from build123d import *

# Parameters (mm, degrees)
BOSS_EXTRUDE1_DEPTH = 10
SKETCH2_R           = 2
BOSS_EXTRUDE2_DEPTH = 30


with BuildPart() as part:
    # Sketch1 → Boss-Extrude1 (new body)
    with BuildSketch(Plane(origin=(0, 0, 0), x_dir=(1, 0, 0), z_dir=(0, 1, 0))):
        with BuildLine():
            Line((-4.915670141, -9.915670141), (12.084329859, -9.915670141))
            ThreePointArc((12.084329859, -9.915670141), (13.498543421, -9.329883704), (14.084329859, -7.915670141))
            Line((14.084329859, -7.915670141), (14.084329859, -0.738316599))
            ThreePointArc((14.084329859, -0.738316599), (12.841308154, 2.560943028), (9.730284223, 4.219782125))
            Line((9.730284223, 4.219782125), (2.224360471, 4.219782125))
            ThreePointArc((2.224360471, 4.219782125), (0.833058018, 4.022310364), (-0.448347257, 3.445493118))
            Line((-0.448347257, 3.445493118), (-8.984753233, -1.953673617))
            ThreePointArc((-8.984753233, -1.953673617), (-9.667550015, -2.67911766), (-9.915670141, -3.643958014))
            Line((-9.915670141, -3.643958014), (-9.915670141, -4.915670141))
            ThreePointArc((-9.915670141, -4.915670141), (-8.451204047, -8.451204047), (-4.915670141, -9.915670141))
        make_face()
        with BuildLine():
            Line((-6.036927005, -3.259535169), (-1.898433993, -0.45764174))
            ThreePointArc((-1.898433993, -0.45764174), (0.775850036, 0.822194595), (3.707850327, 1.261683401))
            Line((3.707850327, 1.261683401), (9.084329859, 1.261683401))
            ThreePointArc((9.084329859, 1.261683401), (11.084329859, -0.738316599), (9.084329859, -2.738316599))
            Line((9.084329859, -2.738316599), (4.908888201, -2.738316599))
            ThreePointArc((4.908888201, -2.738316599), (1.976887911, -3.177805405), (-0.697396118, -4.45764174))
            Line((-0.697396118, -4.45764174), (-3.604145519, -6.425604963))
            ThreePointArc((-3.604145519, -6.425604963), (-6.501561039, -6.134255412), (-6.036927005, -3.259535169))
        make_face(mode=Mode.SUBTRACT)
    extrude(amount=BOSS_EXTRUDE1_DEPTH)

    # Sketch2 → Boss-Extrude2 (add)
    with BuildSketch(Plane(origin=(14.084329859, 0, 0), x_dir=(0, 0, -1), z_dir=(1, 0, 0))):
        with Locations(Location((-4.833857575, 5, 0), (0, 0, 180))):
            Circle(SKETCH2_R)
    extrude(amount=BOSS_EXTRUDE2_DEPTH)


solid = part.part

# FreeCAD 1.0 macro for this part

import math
import FreeCAD as App
import Part
import Sketcher
from FreeCAD import Vector
Q = App.Units.Quantity

doc = App.newDocument("Part")
body = doc.addObject("PartDesign::Body", "Body")

sketch1 = body.newObject("Sketcher::SketchObject", "Sketch")
sketch1.AttachmentSupport = (doc.getObject("XZ_Plane"), [""])
sketch1.MapMode = "FlatFace"
sketch1.addGeometry(Part.LineSegment(Vector(-4.91567, 9.91567, 0), Vector(12.08433, 9.91567, 0)), False)
sketch1.addGeometry(Part.ArcOfCircle(Part.Circle(Vector(12.08433, 7.91567, 0), Vector(0, 0, 1), 2), math.radians(0), math.radians(90)), False)
sketch1.addGeometry(Part.LineSegment(Vector(14.08433, 7.91567, 0), Vector(14.08433, 0.738317, 0)), False)
sketch1.addGeometry(Part.ArcOfCircle(Part.Circle(Vector(9.08433, 0.738317, 0), Vector(0, 0, 1), 5), math.radians(-82.577162), math.radians(0)), False)
sketch1.addGeometry(Part.LineSegment(Vector(9.730284, -4.219782, 0), Vector(2.22436, -4.219782, 0)), False)
sketch1.addGeometry(Part.ArcOfCircle(Part.Circle(Vector(2.22436, 0.780218, 0), Vector(0, 0, 1), 5), math.radians(-122.312826), math.radians(-90)), False)
sketch1.addGeometry(Part.LineSegment(Vector(-0.448347, -3.445493, 0), Vector(-8.984753, 1.953674, 0)), False)
sketch1.addGeometry(Part.ArcOfCircle(Part.Circle(Vector(-7.91567, 3.643958, 0), Vector(0, 0, 1), 2), math.radians(180), math.radians(237.687175)), False)
sketch1.addGeometry(Part.LineSegment(Vector(-9.91567, 3.643958, 0), Vector(-9.91567, 4.91567, 0)), False)
sketch1.addGeometry(Part.ArcOfCircle(Part.Circle(Vector(-4.91567, 4.91567, 0), Vector(0, 0, 1), 5), math.radians(90), math.radians(180)), False)
sketch1.addGeometry(Part.ArcOfCircle(Part.Circle(Vector(-4.91567, 4.91567, 0), Vector(0, 0, 1), 2), math.radians(49.022522), math.radians(235.900731)), False)
sketch1.addGeometry(Part.LineSegment(Vector(-6.036927, 3.259535, 0), Vector(-1.898434, 0.457642, 0)), False)
sketch1.addGeometry(Part.ArcOfCircle(Part.Circle(Vector(3.70785, 8.738317, 0), Vector(0, 0, 1), 10), math.radians(-124.099269), math.radians(-90)), False)
sketch1.addGeometry(Part.LineSegment(Vector(3.70785, -1.261683, 0), Vector(9.08433, -1.261683, 0)), False)
sketch1.addGeometry(Part.ArcOfCircle(Part.Circle(Vector(9.08433, 0.738317, 0), Vector(0, 0, 1), 2), math.radians(-90), math.radians(90)), False)
sketch1.addGeometry(Part.LineSegment(Vector(9.08433, 2.738317, 0), Vector(4.908888, 2.738317, 0)), False)
sketch1.addGeometry(Part.ArcOfCircle(Part.Circle(Vector(4.908888, 12.738317, 0), Vector(0, 0, 1), 10), math.radians(-124.099269), math.radians(-90)), False)
sketch1.addGeometry(Part.LineSegment(Vector(-0.697396, 4.457642, 0), Vector(-3.604146, 6.425605, 0)), False)
sketch1.addConstraint(Sketcher.Constraint("Tangent", 0, 2, 1, 2))
sketch1.addConstraint(Sketcher.Constraint("Tangent", 1, 1, 2, 1))
sketch1.addConstraint(Sketcher.Constraint("Tangent", 2, 2, 3, 2))
sketch1.addConstraint(Sketcher.Constraint("Coincident", 3, 1, 4, 1))
sketch1.addConstraint(Sketcher.Constraint("Tangent", 4, 2, 5, 2))
sketch1.addConstraint(Sketcher.Constraint("Tangent", 5, 1, 6, 1))
sketch1.addConstraint(Sketcher.Constraint("Tangent", 6, 2, 7, 2))
sketch1.addConstraint(Sketcher.Constraint("Tangent", 7, 1, 8, 1))
sketch1.addConstraint(Sketcher.Constraint("Tangent", 8, 2, 9, 2))
sketch1.addConstraint(Sketcher.Constraint("Tangent", 9, 1, 0, 1))
sketch1.addConstraint(Sketcher.Constraint("Tangent", 10, 2, 11, 1))
sketch1.addConstraint(Sketcher.Constraint("Tangent", 11, 2, 12, 1))
sketch1.addConstraint(Sketcher.Constraint("Tangent", 12, 2, 13, 1))
sketch1.addConstraint(Sketcher.Constraint("Tangent", 13, 2, 14, 1))
sketch1.addConstraint(Sketcher.Constraint("Tangent", 14, 2, 15, 1))
sketch1.addConstraint(Sketcher.Constraint("Tangent", 15, 2, 16, 2))
sketch1.addConstraint(Sketcher.Constraint("Tangent", 16, 1, 17, 1))
sketch1.addConstraint(Sketcher.Constraint("Coincident", 17, 2, 10, 1))
sketch1.addConstraint(Sketcher.Constraint("Horizontal", 0))
sketch1.addConstraint(Sketcher.Constraint("Vertical", 2))
sketch1.addConstraint(Sketcher.Constraint("Horizontal", 4))
sketch1.addConstraint(Sketcher.Constraint("Vertical", 8))
sketch1.addConstraint(Sketcher.Constraint("Horizontal", 13))
sketch1.addConstraint(Sketcher.Constraint("Horizontal", 15))
sketch1.addConstraint(Sketcher.Constraint("Coincident", 10, 3, 9, 3))
sketch1.addConstraint(Sketcher.Constraint("Coincident", 14, 3, 3, 3))
sketch1.addConstraint(Sketcher.Constraint("Equal", 3, 5))
sketch1.addConstraint(Sketcher.Constraint("Equal", 1, 7))
sketch1.addConstraint(Sketcher.Constraint("Equal", 5, 9))
sketch1.addConstraint(Sketcher.Constraint("Equal", 7, 10))
sketch1.addConstraint(Sketcher.Constraint("Equal", 10, 14))
sketch1.addConstraint(Sketcher.Constraint("Equal", 12, 16))
sketch1.addConstraint(Sketcher.Constraint("Parallel", 11, 17))
sketch1.addConstraint(Sketcher.Constraint("Radius", 1, Q("2 mm")))
sketch1.addConstraint(Sketcher.Constraint("Radius", 3, Q("5 mm")))
sketch1.addConstraint(Sketcher.Constraint("Radius", 12, Q("10 mm")))
sketch1.addConstraint(Sketcher.Constraint("DistanceX", 0, 1, 0, 2, Q("17 mm")))
sketch1.addConstraint(Sketcher.Constraint("DistanceX", 13, 1, 13, 2, Q("5.37648 mm")))
sketch1.addConstraint(Sketcher.Constraint("DistanceX", 15, 2, 15, 1, Q("4.175442 mm")))
sketch1.addConstraint(Sketcher.Constraint("DistanceY", 3, 3, 5, 3, Q("0.041901 mm")))
sketch1.addConstraint(Sketcher.Constraint("Distance", 17, Q("3.510281 mm")))
sketch1.addConstraint(Sketcher.Constraint("DistanceX", 4, 2, 4, 1, Q("7.505924 mm")))
sketch1.addConstraint(Sketcher.Constraint("DistanceY", 8, 1, 8, 2, Q("1.271712 mm")))
sketch1.addConstraint(Sketcher.Constraint("DistanceX", -1, 1, 1, 3, Q("12.08433 mm")))
sketch1.addConstraint(Sketcher.Constraint("DistanceY", -1, 1, 1, 3, Q("7.91567 mm")))
pad1 = body.newObject("PartDesign::Pad", "Pad")
pad1.Profile = sketch1
pad1.Length = 10
pad1.Reversed = True

sketch2 = body.newObject("Sketcher::SketchObject", "Sketch001")
sketch2.AttachmentSupport = (doc.getObject("YZ_Plane"), [""])
sketch2.MapMode = "FlatFace"
sketch2.AttachmentOffset = App.Placement(Vector(0, 0, 14.08433), App.Rotation())
sketch2.addGeometry(Part.Circle(Vector(5, 4.833858, 0), Vector(0, 0, 1), 2), False)
sketch2.addConstraint(Sketcher.Constraint("Diameter", 0, Q("4 mm")))
sketch2.addConstraint(Sketcher.Constraint("DistanceX", -1, 1, 0, 3, Q("5 mm")))
sketch2.addConstraint(Sketcher.Constraint("DistanceY", -1, 1, 0, 3, Q("4.833858 mm")))
pad2 = body.newObject("PartDesign::Pad", "Pad001")
pad2.Profile = sketch2
pad2.Length = 30

doc.recompute()
